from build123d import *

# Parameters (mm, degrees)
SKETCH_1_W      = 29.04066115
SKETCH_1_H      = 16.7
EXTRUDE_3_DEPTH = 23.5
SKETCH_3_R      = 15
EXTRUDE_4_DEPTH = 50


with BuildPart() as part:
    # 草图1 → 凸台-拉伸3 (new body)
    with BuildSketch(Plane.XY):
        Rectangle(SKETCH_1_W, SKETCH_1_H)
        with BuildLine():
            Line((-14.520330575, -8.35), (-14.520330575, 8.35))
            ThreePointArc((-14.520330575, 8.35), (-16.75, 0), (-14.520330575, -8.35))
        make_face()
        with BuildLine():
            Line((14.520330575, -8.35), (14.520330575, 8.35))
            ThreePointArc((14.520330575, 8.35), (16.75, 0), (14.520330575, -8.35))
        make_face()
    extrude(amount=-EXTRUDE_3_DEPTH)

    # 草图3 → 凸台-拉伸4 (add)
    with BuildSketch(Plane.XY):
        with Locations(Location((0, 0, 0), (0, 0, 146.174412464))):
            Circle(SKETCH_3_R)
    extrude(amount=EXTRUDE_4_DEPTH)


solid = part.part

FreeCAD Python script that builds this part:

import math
import FreeCAD as App
import Part
import Sketcher
from FreeCAD import Vector

doc = App.newDocument("Part")
body = doc.addObject("PartDesign::Body", "Body")

# Sketch on XY plane
sketch1 = doc.addObject("Sketcher::SketchObject", "Sketch")
body.addObject(sketch1)
sketch1.AttachmentSupport = (doc.XY_Plane, [""])
sketch1.MapMode = "FlatFace"
sketch1.addGeometry([
    Part.LineSegment(Vector(-15, -8, 0), Vector(15, -8, 0)),
    Part.ArcOfCircle(Part.Circle(Vector(0, 0, 0), Vector(0, 0, 1), 17), math.radians(-30), math.radians(30)),
    Part.LineSegment(Vector(15, 8, 0), Vector(-15, 8, 0)),
    Part.ArcOfCircle(Part.Circle(Vector(0, 0, 0), Vector(0, 0, 1), 17), math.radians(150), math.radians(210)),
], False)
sketch1.addConstraint([
    Sketcher.Constraint("Coincident", 0, 2, 1, 1),
    Sketcher.Constraint("Coincident", 1, 2, 2, 1),
    Sketcher.Constraint("Coincident", 2, 2, 3, 1),
    Sketcher.Constraint("Coincident", 3, 2, 0, 1),
    Sketcher.Constraint("Horizontal", 0),
    Sketcher.Constraint("Horizontal", 2),
    Sketcher.Constraint("Coincident", 1, 3, -1, 1),
    Sketcher.Constraint("Coincident", 3, 3, -1, 1),
    Sketcher.Constraint("Equal", 1, 3),
    Sketcher.Constraint("Vertical", 0, 2, 1, 2),
    Sketcher.Constraint("Radius", 1, 16.75),
    Sketcher.Constraint("DistanceY", 0, 2, 1, 2, 16.7),
])
pad1 = doc.addObject("PartDesign::Pad", "Pad")
body.addObject(pad1)
pad1.Profile = sketch1
pad1.Length = 23.5
pad1.Reversed = True

# Sketch on XY plane
sketch2 = doc.addObject("Sketcher::SketchObject", "Sketch001")
body.addObject(sketch2)
sketch2.AttachmentSupport = (doc.XY_Plane, [""])
sketch2.MapMode = "FlatFace"
sketch2.addGeometry(Part.Circle(Vector(0, 0, 0), Vector(0, 0, 1), 15), False)
sketch2.addConstraint([
    Sketcher.Constraint("Coincident", 0, 3, -1, 1),
    Sketcher.Constraint("Diameter", 0, 30.0),
])
pad2 = doc.addObject("PartDesign::Pad", "Pad001")
body.addObject(pad2)
pad2.Profile = sketch2
pad2.Length = 50

doc.recompute()
